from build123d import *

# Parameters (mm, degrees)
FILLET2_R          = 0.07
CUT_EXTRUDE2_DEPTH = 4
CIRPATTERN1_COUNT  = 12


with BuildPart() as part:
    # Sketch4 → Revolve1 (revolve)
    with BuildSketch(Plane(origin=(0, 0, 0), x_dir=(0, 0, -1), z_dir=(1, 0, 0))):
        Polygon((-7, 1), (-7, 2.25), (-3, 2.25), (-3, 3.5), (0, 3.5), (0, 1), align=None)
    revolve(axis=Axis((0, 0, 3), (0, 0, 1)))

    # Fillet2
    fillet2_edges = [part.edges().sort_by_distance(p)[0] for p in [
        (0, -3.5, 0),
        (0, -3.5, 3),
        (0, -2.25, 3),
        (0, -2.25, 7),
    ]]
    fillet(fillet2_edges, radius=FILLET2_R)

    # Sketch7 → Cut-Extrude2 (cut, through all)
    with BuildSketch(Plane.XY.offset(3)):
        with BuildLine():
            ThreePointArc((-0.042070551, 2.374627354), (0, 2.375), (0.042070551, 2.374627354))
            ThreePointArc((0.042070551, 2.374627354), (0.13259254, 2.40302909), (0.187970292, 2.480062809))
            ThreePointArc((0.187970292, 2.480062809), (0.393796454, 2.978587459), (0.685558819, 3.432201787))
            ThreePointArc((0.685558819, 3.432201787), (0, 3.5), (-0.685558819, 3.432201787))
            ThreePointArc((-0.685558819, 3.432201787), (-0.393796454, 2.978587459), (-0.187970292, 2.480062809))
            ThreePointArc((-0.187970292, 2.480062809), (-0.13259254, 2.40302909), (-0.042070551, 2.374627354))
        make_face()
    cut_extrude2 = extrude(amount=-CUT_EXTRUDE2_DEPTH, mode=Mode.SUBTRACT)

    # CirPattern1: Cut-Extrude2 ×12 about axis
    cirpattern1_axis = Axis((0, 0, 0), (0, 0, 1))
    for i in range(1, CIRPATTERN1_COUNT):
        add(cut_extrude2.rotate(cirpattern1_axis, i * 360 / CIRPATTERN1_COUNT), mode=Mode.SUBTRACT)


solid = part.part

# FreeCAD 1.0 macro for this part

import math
import FreeCAD as App
import Part
import Sketcher
Q = App.Units.Quantity


def edges_at(feature, points):
    """Names of the edges that pass closest to the given points."""
    edges = feature.Shape.Edges
    near = lambda p: min(range(len(edges)), key=lambda i: edges[i].distToShape(Part.Vertex(*p))[0])
    return sorted({f"Edge{near(p) + 1}" for p in points})


def add_polygon(sketch, points):
    """Adds a closed chain of lines whose ends are joined by coincident constraints."""
    first, n = sketch.GeometryCount, len(points)
    for a, b in zip(points, points[1:] + points[:1]):
        sketch.addGeometry(Part.LineSegment(App.Vector(*a, 0), App.Vector(*b, 0)), False)
    for i in range(n):
        sketch.addConstraint(Sketcher.Constraint("Coincident", first + i, 2, first + (i + 1) % n, 1))

doc = App.newDocument("Part")
body = doc.addObject("PartDesign::Body", "Body")

sketch1 = doc.addObject("Sketcher::SketchObject", "Sketch")
body.addObject(sketch1)
sketch1.AttachmentSupport = (doc.YZ_Plane, [""])
sketch1.MapMode = "FlatFace"
add_polygon(sketch1, [(2.25, 7), (1, 7), (1, 0), (3.5, 0), (3.5, 3), (2.25, 3)])
sketch1.addConstraint(Sketcher.Constraint("Horizontal", 0))
sketch1.addConstraint(Sketcher.Constraint("Vertical", 1))
sketch1.addConstraint(Sketcher.Constraint("Horizontal", 2))
sketch1.addConstraint(Sketcher.Constraint("Vertical", 3))
sketch1.addConstraint(Sketcher.Constraint("Horizontal", 4))
sketch1.addConstraint(Sketcher.Constraint("Vertical", 5))
sketch1.addConstraint(Sketcher.Constraint("PointOnObject", 1, 2, -1))
sketch1.addConstraint(Sketcher.Constraint("Equal", 0, 4))
sketch1.addConstraint(Sketcher.Constraint("DistanceY", 1, 2, 1, 1, Q("7 mm")))
sketch1.addConstraint(Sketcher.Constraint("DistanceY", 3, 1, 3, 2, Q("3 mm")))
sketch1.addConstraint(Sketcher.Constraint("DistanceX", 2, 1, 2, 2, Q("2.5 mm")))
sketch1.addConstraint(Sketcher.Constraint("DistanceX", -1, 1, 0, 2, Q("1 mm")))
revolution = doc.addObject("PartDesign::Revolution", "Revolution")
body.addObject(revolution)
revolution.Profile = sketch1
revolution.ReferenceAxis = (sketch1, ["V_Axis"])
revolution.Angle = 360
doc.recompute()

fillet = doc.addObject("PartDesign::Fillet", "Fillet")
body.addObject(fillet)
fillet.Base = (revolution, edges_at(revolution, [
    (0, -3.5, 0),
    (0, -3.5, 3),
    (0, -2.25, 3),
    (0, -2.25, 7),
]))
fillet.Radius = 0.07

sketch2 = doc.addObject("Sketcher::SketchObject", "Sketch001")
body.addObject(sketch2)
sketch2.AttachmentSupport = (doc.XY_Plane, [""])
sketch2.MapMode = "FlatFace"
sketch2.AttachmentOffset = App.Placement(App.Vector(0, 0, 3), App.Rotation())
sketch2.addGeometry(Part.ArcOfCircle(Part.Circle(App.Vector(0, -0.000002, 0), App.Vector(0, 0, 1), 2.375002), math.radians(88.985015), math.radians(91.014985)), False)
sketch2.addGeometry(Part.ArcOfCircle(Part.Circle(App.Vector(0.044728, 2.524615, 0), App.Vector(0, 0, 1), 0.150011), math.radians(-91.014986), math.radians(-17.276979)), False)
sketch2.addGeometry(Part.ArcOfCircle(Part.Circle(App.Vector(3.052611, 1.589089, 0), App.Vector(0, 0, 1), 3), math.radians(142.093777), math.radians(162.723021)), False)
sketch2.addGeometry(Part.ArcOfCircle(Part.Circle(App.Vector(0, 0, 0), App.Vector(0, 0, 1), 3.5), math.radians(78.704218), math.radians(101.295782)), False)
sketch2.addGeometry(Part.ArcOfCircle(Part.Circle(App.Vector(-3.052611, 1.589089, 0), App.Vector(0, 0, 1), 3), math.radians(17.276979), math.radians(37.906223)), False)
sketch2.addGeometry(Part.ArcOfCircle(Part.Circle(App.Vector(-0.044728, 2.524615, 0), App.Vector(0, 0, 1), 0.150011), math.radians(-162.723021), math.radians(-88.985014)), False)
sketch2.addConstraint(Sketcher.Constraint("Tangent", 0, 1, 1, 1))
sketch2.addConstraint(Sketcher.Constraint("Tangent", 1, 2, 2, 2))
sketch2.addConstraint(Sketcher.Constraint("Coincident", 2, 1, 3, 1))
sketch2.addConstraint(Sketcher.Constraint("Coincident", 3, 2, 4, 2))
sketch2.addConstraint(Sketcher.Constraint("Tangent", 4, 1, 5, 1))
sketch2.addConstraint(Sketcher.Constraint("Tangent", 5, 2, 0, 2))
sketch2.addConstraint(Sketcher.Constraint("Coincident", 0, 3, -1, 1))
sketch2.addConstraint(Sketcher.Constraint("Coincident", 3, 3, -1, 1))
sketch2.addConstraint(Sketcher.Constraint("Equal", 2, 4))
sketch2.addConstraint(Sketcher.Constraint("Equal", 1, 5))
sketch2.addConstraint(Sketcher.Constraint("Symmetric", 2, 3, 4, 3, -2))
sketch2.addConstraint(Sketcher.Constraint("Radius", 2, Q("3 mm")))
sketch2.addConstraint(Sketcher.Constraint("Radius", 3, Q("3.5 mm")))
sketch2.addConstraint(Sketcher.Constraint("Radius", 1, Q("0.150011 mm")))
sketch2.addConstraint(Sketcher.Constraint("Radius", 0, Q("2.375002 mm")))
sketch2.addConstraint(Sketcher.Constraint("DistanceY", -1, 1, 2, 1, Q("3.432202 mm")))
sketch2.addConstraint(Sketcher.Constraint("DistanceX", 5, 3, 0, 1, Q("0.086798 mm")))
pocket1 = doc.addObject("PartDesign::Pocket", "Pocket")
body.addObject(pocket1)
pocket1.Profile = sketch2
pocket1.Type = "ThroughAll"
doc.recompute()

polarpattern = doc.addObject("PartDesign::PolarPattern", "PolarPattern")
body.addObject(polarpattern)
polarpattern.Originals = [pocket1]
polarpattern.Axis = (doc.Z_Axis, [""])
polarpattern.Angle = 360
polarpattern.Occurrences = 12
body.Tip = polarpattern

doc.recompute()
